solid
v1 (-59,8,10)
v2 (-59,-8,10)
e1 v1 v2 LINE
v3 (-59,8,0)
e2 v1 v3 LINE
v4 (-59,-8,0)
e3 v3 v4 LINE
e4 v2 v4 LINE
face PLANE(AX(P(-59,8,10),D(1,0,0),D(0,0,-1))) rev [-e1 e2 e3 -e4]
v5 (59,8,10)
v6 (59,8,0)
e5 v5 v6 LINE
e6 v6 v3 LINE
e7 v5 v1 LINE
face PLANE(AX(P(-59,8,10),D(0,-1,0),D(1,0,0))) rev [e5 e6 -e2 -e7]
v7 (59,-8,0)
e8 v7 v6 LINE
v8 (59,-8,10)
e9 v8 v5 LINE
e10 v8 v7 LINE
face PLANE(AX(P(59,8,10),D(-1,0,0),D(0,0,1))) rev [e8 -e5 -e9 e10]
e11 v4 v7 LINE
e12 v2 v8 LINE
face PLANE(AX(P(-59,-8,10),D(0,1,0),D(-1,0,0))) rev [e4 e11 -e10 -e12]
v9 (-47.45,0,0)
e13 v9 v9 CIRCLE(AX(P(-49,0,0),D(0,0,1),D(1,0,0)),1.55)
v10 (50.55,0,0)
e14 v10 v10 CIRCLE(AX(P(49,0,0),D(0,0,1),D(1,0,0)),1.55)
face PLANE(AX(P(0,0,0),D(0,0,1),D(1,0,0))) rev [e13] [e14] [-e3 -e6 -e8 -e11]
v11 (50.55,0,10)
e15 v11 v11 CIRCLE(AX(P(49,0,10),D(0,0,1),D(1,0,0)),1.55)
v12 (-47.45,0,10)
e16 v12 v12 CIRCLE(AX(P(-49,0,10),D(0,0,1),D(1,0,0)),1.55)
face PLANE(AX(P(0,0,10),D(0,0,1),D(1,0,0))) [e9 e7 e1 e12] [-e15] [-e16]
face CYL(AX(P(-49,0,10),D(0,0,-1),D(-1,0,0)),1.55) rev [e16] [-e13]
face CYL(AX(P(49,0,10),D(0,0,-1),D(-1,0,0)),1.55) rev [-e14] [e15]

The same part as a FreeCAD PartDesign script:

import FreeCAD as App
import Part
import Sketcher


def add_polygon(sketch, points):
    """Adds a closed chain of lines whose ends are joined by coincident constraints."""
    first, n = sketch.GeometryCount, len(points)
    for a, b in zip(points, points[1:] + points[:1]):
        sketch.addGeometry(Part.LineSegment(App.Vector(*a, 0), App.Vector(*b, 0)), False)
    for i in range(n):
        sketch.addConstraint(Sketcher.Constraint("Coincident", first + i, 2, first + (i + 1) % n, 1))

doc = App.newDocument("Part")
body = doc.addObject("PartDesign::Body", "Body")

# Sketch on XY plane
sketch1 = body.newObject("Sketcher::SketchObject", "Sketch")
sketch1.AttachmentSupport = (doc.getObject("XY_Plane"), [""])
sketch1.MapMode = "FlatFace"
add_polygon(sketch1, [(-59, 8), (-59, -8), (59, -8), (59, 8)])  # lines 0-3
sketch1.addGeometry(Part.Circle(App.Vector(-49, 0, 0), App.Vector(0, 0, 1), 1.6), False)  # 4
sketch1.addGeometry(Part.Circle(App.Vector(49, 0, 0), App.Vector(0, 0, 1), 1.6), False)  # 5
sketch1.addConstraint([
    Sketcher.Constraint("Vertical", 0),
    Sketcher.Constraint("Horizontal", 1),
    Sketcher.Constraint("Vertical", 2),
    Sketcher.Constraint("Horizontal", 3),
    Sketcher.Constraint("Equal", 4, 5),
    Sketcher.Constraint("Symmetric", 4, 3, 5, 3, -1, 1),
    Sketcher.Constraint("Symmetric", 0, 2, 2, 2, -1, 1),
    Sketcher.Constraint("PointOnObject", 4, 3, -1),
    Sketcher.Constraint("Diameter", 4, 3.1),
    Sketcher.Constraint("DistanceX", 1, 1, 1, 2, 118.0),
    Sketcher.Constraint("DistanceY", 0, 2, 0, 1, 16.0),
    Sketcher.Constraint("DistanceX", 4, 3, -1, 1, 49.0),
])
pad1 = body.newObject("PartDesign::Pad", "Pad")
pad1.Profile = sketch1
pad1.Length = 10

doc.recompute()
